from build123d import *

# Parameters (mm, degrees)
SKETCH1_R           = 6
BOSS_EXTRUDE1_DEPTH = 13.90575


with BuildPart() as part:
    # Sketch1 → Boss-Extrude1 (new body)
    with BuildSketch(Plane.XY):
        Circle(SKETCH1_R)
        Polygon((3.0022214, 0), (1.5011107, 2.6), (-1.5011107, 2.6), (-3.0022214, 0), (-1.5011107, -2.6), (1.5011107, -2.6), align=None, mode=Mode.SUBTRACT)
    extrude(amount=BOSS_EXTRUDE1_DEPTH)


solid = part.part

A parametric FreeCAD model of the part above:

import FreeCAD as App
import Part
import Sketcher
from FreeCAD import Vector
Q = App.Units.Quantity


def add_polygon(sketch, points):
    """Adds a closed chain of lines whose ends are joined by coincident constraints."""
    first, n = sketch.GeometryCount, len(points)
    for a, b in zip(points, points[1:] + points[:1]):
        sketch.addGeometry(Part.LineSegment(App.Vector(*a, 0), App.Vector(*b, 0)), False)
    for i in range(n):
        sketch.addConstraint(Sketcher.Constraint("Coincident", first + i, 2, first + (i + 1) % n, 1))

doc = App.newDocument("Part")
params = doc.addObject("Spreadsheet::Sheet", "Params")
for row, (alias, value) in enumerate([
    ("sketch1_diameter", "12 mm"),
    ("pad1_length", "13.90575 mm"),
], start=1):
    params.set(f"A{row}", alias)
    params.set(f"B{row}", "=" + value)
    params.setAlias(f"B{row}", alias)

body = doc.addObject("PartDesign::Body", "Body")

sketch1 = body.newObject("Sketcher::SketchObject", "Sketch")
sketch1.AttachmentSupport = (doc.getObject("XY_Plane"), [""])
sketch1.MapMode = "FlatFace"
sketch1.addGeometry(Part.Circle(Vector(0, 0, 0), Vector(0, 0, 1), 6), False)
add_polygon(sketch1, [(1.5, 2.6), (3, 0), (1.5, -2.6), (-1.5, -2.6), (-3, 0), (-1.5, 2.6)])
sketch1.addConstraint([
    Sketcher.Constraint("Horizontal", 3),
    Sketcher.Constraint("Horizontal", 6),
    Sketcher.Constraint("Coincident", 0, 3, -1, 1),
    Sketcher.Constraint("Symmetric", 1, 2, 4, 2, -1, 1),
    Sketcher.Constraint("Symmetric", 2, 2, 5, 2, -1, 1),
    Sketcher.Constraint("PointOnObject", 1, 2, -1),
    Sketcher.Constraint("Parallel", 1, 4),
    Sketcher.Constraint("Vertical", 3, 2, 5, 2),
    Sketcher.Constraint("Diameter", 0, Q("12 mm")),
    Sketcher.Constraint("Angle", 1, Q("-60 deg")),
    Sketcher.Constraint("DistanceY", 2, 2, -1, 1, Q("2.6 mm")),
    Sketcher.Constraint("DistanceX", 3, 2, 3, 1, Q("3.002221 mm")),
])
sketch1.setExpression("Constraints[14]", "Params.sketch1_diameter")
pad1 = body.newObject("PartDesign::Pad", "Pad")
pad1.Profile = sketch1
pad1.setExpression("Length", "Params.pad1_length")

doc.recompute()
